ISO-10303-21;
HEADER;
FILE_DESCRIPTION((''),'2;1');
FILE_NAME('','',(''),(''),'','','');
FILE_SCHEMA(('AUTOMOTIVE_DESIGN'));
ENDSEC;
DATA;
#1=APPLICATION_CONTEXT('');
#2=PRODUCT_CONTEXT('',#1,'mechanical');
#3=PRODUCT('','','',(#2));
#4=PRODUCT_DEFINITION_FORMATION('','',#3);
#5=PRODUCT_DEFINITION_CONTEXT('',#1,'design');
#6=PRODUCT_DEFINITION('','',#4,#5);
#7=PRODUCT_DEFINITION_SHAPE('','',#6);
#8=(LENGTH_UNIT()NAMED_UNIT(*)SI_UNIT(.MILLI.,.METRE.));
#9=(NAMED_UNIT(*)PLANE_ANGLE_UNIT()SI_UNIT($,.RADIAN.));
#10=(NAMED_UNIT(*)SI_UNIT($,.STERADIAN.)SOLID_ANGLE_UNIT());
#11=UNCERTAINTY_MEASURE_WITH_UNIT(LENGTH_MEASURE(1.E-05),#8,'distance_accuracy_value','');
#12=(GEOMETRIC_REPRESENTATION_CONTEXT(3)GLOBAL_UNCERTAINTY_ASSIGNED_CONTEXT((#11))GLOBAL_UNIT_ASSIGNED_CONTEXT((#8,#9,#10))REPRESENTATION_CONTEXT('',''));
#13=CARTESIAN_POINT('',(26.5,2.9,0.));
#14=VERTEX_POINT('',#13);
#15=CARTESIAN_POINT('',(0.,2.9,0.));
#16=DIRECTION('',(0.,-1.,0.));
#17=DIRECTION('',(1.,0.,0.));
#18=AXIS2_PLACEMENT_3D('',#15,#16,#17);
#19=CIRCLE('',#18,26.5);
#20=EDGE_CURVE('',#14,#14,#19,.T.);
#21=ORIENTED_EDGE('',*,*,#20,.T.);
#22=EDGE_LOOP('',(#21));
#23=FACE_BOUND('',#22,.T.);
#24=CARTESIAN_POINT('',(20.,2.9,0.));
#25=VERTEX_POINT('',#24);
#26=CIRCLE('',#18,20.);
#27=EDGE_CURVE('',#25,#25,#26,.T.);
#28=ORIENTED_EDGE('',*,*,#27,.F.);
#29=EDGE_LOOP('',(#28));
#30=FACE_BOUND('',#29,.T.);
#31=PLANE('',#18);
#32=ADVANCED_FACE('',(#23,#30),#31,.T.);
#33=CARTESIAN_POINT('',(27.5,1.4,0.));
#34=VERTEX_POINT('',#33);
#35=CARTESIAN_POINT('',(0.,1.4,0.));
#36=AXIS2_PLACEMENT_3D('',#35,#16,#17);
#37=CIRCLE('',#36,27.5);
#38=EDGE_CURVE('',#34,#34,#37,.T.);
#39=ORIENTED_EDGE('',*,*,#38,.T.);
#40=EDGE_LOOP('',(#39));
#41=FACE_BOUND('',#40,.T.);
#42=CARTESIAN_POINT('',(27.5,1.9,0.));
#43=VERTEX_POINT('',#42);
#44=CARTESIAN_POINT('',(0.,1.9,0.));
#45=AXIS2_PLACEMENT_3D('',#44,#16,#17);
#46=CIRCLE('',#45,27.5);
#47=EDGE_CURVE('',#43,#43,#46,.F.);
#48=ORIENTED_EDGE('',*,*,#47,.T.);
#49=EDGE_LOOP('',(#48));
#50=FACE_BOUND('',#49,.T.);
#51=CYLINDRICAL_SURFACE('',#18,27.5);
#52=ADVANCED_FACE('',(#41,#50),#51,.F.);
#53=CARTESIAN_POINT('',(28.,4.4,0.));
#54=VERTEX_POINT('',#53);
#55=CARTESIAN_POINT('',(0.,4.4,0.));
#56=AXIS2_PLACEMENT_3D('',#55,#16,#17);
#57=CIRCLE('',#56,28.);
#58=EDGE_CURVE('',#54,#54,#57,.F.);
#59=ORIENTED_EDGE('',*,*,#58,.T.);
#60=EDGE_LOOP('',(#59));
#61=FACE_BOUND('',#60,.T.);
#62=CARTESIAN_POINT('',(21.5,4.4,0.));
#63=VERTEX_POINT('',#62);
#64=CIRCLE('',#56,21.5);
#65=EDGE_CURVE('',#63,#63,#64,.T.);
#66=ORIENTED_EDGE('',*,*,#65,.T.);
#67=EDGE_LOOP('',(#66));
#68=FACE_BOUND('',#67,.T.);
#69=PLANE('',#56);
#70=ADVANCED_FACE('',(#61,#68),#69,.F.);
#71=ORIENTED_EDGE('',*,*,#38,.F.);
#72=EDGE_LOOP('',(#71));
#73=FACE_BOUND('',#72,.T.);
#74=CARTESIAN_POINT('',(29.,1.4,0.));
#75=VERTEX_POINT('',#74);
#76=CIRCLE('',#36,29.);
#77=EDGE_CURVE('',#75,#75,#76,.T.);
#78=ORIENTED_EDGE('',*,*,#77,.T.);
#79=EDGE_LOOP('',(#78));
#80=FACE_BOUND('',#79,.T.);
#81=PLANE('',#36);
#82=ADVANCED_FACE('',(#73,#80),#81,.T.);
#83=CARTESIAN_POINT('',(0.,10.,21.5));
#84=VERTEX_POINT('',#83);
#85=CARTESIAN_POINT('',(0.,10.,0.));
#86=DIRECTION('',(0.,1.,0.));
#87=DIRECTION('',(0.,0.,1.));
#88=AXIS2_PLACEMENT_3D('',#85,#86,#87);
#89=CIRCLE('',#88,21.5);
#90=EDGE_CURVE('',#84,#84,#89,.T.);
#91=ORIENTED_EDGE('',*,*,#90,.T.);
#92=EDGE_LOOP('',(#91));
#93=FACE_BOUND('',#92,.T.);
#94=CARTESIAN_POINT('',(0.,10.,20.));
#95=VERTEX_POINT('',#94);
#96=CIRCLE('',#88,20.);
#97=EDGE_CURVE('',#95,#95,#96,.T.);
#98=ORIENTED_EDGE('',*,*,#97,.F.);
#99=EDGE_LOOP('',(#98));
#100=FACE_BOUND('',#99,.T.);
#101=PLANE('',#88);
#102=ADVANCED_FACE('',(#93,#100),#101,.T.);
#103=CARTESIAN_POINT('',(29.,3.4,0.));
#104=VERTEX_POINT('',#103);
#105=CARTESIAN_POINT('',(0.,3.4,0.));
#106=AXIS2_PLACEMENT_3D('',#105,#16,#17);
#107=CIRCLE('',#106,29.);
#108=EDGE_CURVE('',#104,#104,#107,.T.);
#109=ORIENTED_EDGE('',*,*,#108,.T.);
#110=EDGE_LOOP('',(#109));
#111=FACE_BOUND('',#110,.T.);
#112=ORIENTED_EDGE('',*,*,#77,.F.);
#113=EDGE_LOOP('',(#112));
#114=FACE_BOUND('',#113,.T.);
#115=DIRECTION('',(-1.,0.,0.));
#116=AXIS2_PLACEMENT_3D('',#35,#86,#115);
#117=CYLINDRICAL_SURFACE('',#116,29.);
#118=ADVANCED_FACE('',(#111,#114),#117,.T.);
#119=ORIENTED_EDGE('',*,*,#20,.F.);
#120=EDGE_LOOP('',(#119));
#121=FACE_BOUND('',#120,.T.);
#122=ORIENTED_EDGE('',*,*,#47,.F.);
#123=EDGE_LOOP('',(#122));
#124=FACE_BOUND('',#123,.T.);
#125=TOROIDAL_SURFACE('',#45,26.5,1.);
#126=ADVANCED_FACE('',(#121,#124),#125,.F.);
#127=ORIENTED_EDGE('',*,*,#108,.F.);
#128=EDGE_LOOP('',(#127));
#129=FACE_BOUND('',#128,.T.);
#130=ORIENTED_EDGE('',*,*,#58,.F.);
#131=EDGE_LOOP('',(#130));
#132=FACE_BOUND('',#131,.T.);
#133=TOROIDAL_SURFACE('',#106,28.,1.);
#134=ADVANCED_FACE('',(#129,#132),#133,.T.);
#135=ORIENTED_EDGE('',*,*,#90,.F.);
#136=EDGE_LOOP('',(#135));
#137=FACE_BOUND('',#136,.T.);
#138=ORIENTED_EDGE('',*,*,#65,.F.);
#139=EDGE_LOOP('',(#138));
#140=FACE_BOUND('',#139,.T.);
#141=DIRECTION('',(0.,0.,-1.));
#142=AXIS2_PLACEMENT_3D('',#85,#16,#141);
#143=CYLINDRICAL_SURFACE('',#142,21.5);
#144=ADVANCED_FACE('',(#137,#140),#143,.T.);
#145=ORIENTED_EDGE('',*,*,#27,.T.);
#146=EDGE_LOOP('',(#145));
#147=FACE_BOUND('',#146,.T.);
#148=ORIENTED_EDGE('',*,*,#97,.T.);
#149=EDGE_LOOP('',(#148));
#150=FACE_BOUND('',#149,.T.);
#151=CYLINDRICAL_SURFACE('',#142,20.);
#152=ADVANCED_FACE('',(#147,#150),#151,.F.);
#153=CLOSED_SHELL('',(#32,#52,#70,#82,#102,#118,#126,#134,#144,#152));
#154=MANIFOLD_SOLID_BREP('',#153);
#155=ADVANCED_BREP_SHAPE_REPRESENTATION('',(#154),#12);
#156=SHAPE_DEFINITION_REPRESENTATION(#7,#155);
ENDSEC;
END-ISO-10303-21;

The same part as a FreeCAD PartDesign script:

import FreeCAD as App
import Part
import Sketcher

V = App.Vector


def edges_at(feature, points):
    """Names of the edges that pass closest to the given points."""
    edges = feature.Shape.Edges
    near = lambda p: min(range(len(edges)), key=lambda i: edges[i].distToShape(Part.Vertex(*p))[0])
    return sorted({f"Edge{near(p) + 1}" for p in points})

doc = App.newDocument("Part")
body = doc.addObject("PartDesign::Body", "Body")

# Sketch on XZ plane
sketch1 = doc.addObject("Sketcher::SketchObject", "Sketch")
body.addObject(sketch1)
sketch1.AttachmentSupport = (doc.XZ_Plane, [""])
sketch1.MapMode = "FlatFace"
sketch1.addGeometry([
    Part.Circle(V(0, 0, 0), V(0, 0, 1), 22),
    Part.Circle(V(0, 0, 0), V(0, 0, 1), 20),
], False)
sketch1.addConstraint([
    Sketcher.Constraint("Coincident", 0, 3, -1, 1),
    Sketcher.Constraint("Coincident", 1, 3, -1, 1),
    Sketcher.Constraint("Diameter", 0, 43.0),
    Sketcher.Constraint("Diameter", 1, 40.0),
])
pad1 = doc.addObject("PartDesign::Pad", "Pad")
body.addObject(pad1)
pad1.Profile = sketch1
pad1.Length = 10
pad1.Reversed = True

# Sketch on XY plane
sketch2 = doc.addObject("Sketcher::SketchObject", "Sketch001")
body.addObject(sketch2)
sketch2.AttachmentSupport = (doc.XY_Plane, [""])
sketch2.MapMode = "FlatFace"
sketch2.addGeometry([
    Part.LineSegment(V(-27, 3, 0), V(-27, -5, 0)),
    Part.LineSegment(V(-27, -5, 0), V(25, -5, 0)),
    Part.LineSegment(V(25, -5, 0), V(25, 3, 0)),
    Part.LineSegment(V(25, 3, 0), V(-27, 3, 0)),
], False)
sketch2.addConstraint([
    Sketcher.Constraint("Coincident", 0, 2, 1, 1),
    Sketcher.Constraint("Coincident", 1, 2, 2, 1),
    Sketcher.Constraint("Coincident", 2, 2, 3, 1),
    Sketcher.Constraint("Coincident", 3, 2, 0, 1),
    Sketcher.Constraint("Vertical", 0),
    Sketcher.Constraint("Horizontal", 1),
    Sketcher.Constraint("Vertical", 2),
    Sketcher.Constraint("Horizontal", 3),
    Sketcher.Constraint("DistanceY", -1, 1, 2, 2, 2.9),
    Sketcher.Constraint("DistanceY", 0, 2, 0, 1, 7.978608),
    Sketcher.Constraint("DistanceX", 1, 1, 1, 2, 51.961526),
    Sketcher.Constraint("DistanceX", -1, 1, 1, 2, 24.740391),
])
pocket1 = doc.addObject("PartDesign::Pocket", "Pocket")
body.addObject(pocket1)
pocket1.Profile = sketch2
pocket1.Type = "ThroughAll"
pocket1.Midplane = True

# Sketch on XZ plane
sketch3 = doc.addObject("Sketcher::SketchObject", "Sketch002")
body.addObject(sketch3)
sketch3.AttachmentSupport = (doc.XZ_Plane, [""])
sketch3.MapMode = "FlatFace"
sketch3.AttachmentOffset = App.Placement(V(0, 0, -2.9), App.Rotation())
sketch3.addGeometry([
    Part.Circle(V(0, 0, 0), V(0, 0, 1), 29),
    Part.Circle(V(0, 0, 0), V(0, 0, 1), 20),
], False)
sketch3.addConstraint([
    Sketcher.Constraint("Coincident", 0, 3, -1, 1),
    Sketcher.Constraint("Coincident", 1, 3, -1, 1),
    Sketcher.Constraint("Diameter", 0, 58.0),
    Sketcher.Constraint("Diameter", 1, 40.0),
])
pad2 = doc.addObject("PartDesign::Pad", "Pad001")
body.addObject(pad2)
pad2.Profile = sketch3
pad2.Type = "TwoLengths"
pad2.Length = 1.5
pad2.Length2 = 1.5

# Sketch on XZ plane
sketch4 = doc.addObject("Sketcher::SketchObject", "Sketch003")
body.addObject(sketch4)
sketch4.AttachmentSupport = (doc.XZ_Plane, [""])
sketch4.MapMode = "FlatFace"
sketch4.AttachmentOffset = App.Placement(V(0, 0, -1.4), App.Rotation())
sketch4.addGeometry(Part.Circle(V(0, 0, 0), V(0, 0, 1), 28), False)
sketch4.addConstraint([
    Sketcher.Constraint("Coincident", 0, 3, -1, 1),
    Sketcher.Constraint("Diameter", 0, 55.0),
])
pocket2 = doc.addObject("PartDesign::Pocket", "Pocket001")
body.addObject(pocket2)
pocket2.Profile = sketch4
pocket2.Length = 1.5
doc.recompute()

fillet = doc.addObject("PartDesign::Fillet", "Fillet")
body.addObject(fillet)
fillet.Base = (pocket2, edges_at(pocket2, [(-29, 4.4, 0), (-27.5, 2.9, 0)]))
fillet.Radius = 1

doc.recompute()
